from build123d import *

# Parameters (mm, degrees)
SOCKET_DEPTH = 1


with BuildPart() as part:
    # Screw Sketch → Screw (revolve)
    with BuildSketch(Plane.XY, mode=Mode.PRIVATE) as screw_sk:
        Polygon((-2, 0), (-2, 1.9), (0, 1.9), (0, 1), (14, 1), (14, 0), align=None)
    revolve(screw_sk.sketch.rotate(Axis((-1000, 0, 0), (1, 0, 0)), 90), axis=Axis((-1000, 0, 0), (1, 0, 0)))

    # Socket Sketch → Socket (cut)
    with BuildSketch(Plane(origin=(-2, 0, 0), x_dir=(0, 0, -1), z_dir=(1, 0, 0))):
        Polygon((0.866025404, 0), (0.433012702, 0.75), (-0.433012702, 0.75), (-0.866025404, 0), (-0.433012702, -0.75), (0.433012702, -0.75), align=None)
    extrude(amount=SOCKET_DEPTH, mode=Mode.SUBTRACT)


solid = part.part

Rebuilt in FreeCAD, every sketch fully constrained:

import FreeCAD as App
import Part
import Sketcher

V = App.Vector
Q = App.Units.Quantity

doc = App.newDocument("Part")
body = doc.addObject("PartDesign::Body", "Body")

# Sketch on XY plane
sketch1 = body.newObject("Sketcher::SketchObject", "Sketch")
sketch1.AttachmentSupport = (doc.getObject("XY_Plane"), [""])
sketch1.MapMode = "FlatFace"
sketch1.addGeometry(Part.LineSegment(V(-2, 1.9, 0), V(-2, 0, 0)), False)
sketch1.addGeometry(Part.LineSegment(V(-2, 0, 0), V(14, 0, 0)), False)
sketch1.addGeometry(Part.LineSegment(V(14, 0, 0), V(14, 1, 0)), False)
sketch1.addGeometry(Part.LineSegment(V(14, 1, 0), V(0, 1, 0)), False)
sketch1.addGeometry(Part.LineSegment(V(0, 1, 0), V(0, 1.9, 0)), False)
sketch1.addGeometry(Part.LineSegment(V(0, 1.9, 0), V(-2, 1.9, 0)), False)
sketch1.addConstraint(Sketcher.Constraint("Coincident", 0, 2, 1, 1))
sketch1.addConstraint(Sketcher.Constraint("Coincident", 1, 2, 2, 1))
sketch1.addConstraint(Sketcher.Constraint("Coincident", 2, 2, 3, 1))
sketch1.addConstraint(Sketcher.Constraint("Coincident", 3, 2, 4, 1))
sketch1.addConstraint(Sketcher.Constraint("Coincident", 4, 2, 5, 1))
sketch1.addConstraint(Sketcher.Constraint("Coincident", 5, 2, 0, 1))
sketch1.addConstraint(Sketcher.Constraint("Vertical", 0))
sketch1.addConstraint(Sketcher.Constraint("Horizontal", 1))
sketch1.addConstraint(Sketcher.Constraint("Vertical", 2))
sketch1.addConstraint(Sketcher.Constraint("Horizontal", 3))
sketch1.addConstraint(Sketcher.Constraint("Vertical", 4))
sketch1.addConstraint(Sketcher.Constraint("Horizontal", 5))
sketch1.addConstraint(Sketcher.Constraint("PointOnObject", 0, 2, -1))
sketch1.addConstraint(Sketcher.Constraint("PointOnObject", 3, 2, -2))
sketch1.addConstraint(Sketcher.Constraint("DistanceX", 1, 1, 1, 2, Q("16 mm")))
sketch1.addConstraint(Sketcher.Constraint("DistanceX", 3, 2, 3, 1, Q("14 mm")))
sketch1.addConstraint(Sketcher.Constraint("DistanceY", 2, 1, 2, 2, Q("1 mm")))
sketch1.addConstraint(Sketcher.Constraint("DistanceY", 0, 2, 0, 1, Q("1.9 mm")))
revolution = body.newObject("PartDesign::Revolution", "Revolution")
revolution.Profile = sketch1
revolution.ReferenceAxis = (sketch1, ["H_Axis"])
revolution.Angle = 360

# Sketch on YZ plane
sketch2 = body.newObject("Sketcher::SketchObject", "Sketch001")
sketch2.AttachmentSupport = (doc.getObject("YZ_Plane"), [""])
sketch2.MapMode = "FlatFace"
sketch2.AttachmentOffset = App.Placement(V(0, 0, -2), App.Rotation())
sketch2.addGeometry(Part.LineSegment(V(0, -0.9, 0), V(0.8, -0.4, 0)), False)
sketch2.addGeometry(Part.LineSegment(V(0.8, -0.4, 0), V(0.8, 0.4, 0)), False)
sketch2.addGeometry(Part.LineSegment(V(0.8, 0.4, 0), V(0, 0.9, 0)), False)
sketch2.addGeometry(Part.LineSegment(V(0, 0.9, 0), V(-0.8, 0.4, 0)), False)
sketch2.addGeometry(Part.LineSegment(V(-0.8, 0.4, 0), V(-0.8, -0.4, 0)), False)
sketch2.addGeometry(Part.LineSegment(V(-0.8, -0.4, 0), V(0, -0.9, 0)), False)
sketch2.addConstraint(Sketcher.Constraint("Coincident", 0, 2, 1, 1))
sketch2.addConstraint(Sketcher.Constraint("Coincident", 1, 2, 2, 1))
sketch2.addConstraint(Sketcher.Constraint("Coincident", 2, 2, 3, 1))
sketch2.addConstraint(Sketcher.Constraint("Coincident", 3, 2, 4, 1))
sketch2.addConstraint(Sketcher.Constraint("Coincident", 4, 2, 5, 1))
sketch2.addConstraint(Sketcher.Constraint("Coincident", 5, 2, 0, 1))
sketch2.addConstraint(Sketcher.Constraint("Vertical", 1))
sketch2.addConstraint(Sketcher.Constraint("Vertical", 4))
sketch2.addConstraint(Sketcher.Constraint("Symmetric", 0, 2, 3, 2, -1, 1))
sketch2.addConstraint(Sketcher.Constraint("Symmetric", 2, 2, 5, 2, -1, 1))
sketch2.addConstraint(Sketcher.Constraint("PointOnObject", 2, 2, -2))
sketch2.addConstraint(Sketcher.Constraint("Parallel", 2, 5))
sketch2.addConstraint(Sketcher.Constraint("Horizontal", 1, 2, 3, 2))
sketch2.addConstraint(Sketcher.Constraint("Angle", 0, Q("30 deg")))
sketch2.addConstraint(Sketcher.Constraint("DistanceX", 3, 2, 1, 2, Q("1.5 mm")))
sketch2.addConstraint(Sketcher.Constraint("DistanceY", 1, 1, 1, 2, Q("0.866025 mm")))
pocket1 = body.newObject("PartDesign::Pocket", "Pocket")
pocket1.Profile = sketch2
pocket1.Length = 1
pocket1.Reversed = True

doc.recompute()
